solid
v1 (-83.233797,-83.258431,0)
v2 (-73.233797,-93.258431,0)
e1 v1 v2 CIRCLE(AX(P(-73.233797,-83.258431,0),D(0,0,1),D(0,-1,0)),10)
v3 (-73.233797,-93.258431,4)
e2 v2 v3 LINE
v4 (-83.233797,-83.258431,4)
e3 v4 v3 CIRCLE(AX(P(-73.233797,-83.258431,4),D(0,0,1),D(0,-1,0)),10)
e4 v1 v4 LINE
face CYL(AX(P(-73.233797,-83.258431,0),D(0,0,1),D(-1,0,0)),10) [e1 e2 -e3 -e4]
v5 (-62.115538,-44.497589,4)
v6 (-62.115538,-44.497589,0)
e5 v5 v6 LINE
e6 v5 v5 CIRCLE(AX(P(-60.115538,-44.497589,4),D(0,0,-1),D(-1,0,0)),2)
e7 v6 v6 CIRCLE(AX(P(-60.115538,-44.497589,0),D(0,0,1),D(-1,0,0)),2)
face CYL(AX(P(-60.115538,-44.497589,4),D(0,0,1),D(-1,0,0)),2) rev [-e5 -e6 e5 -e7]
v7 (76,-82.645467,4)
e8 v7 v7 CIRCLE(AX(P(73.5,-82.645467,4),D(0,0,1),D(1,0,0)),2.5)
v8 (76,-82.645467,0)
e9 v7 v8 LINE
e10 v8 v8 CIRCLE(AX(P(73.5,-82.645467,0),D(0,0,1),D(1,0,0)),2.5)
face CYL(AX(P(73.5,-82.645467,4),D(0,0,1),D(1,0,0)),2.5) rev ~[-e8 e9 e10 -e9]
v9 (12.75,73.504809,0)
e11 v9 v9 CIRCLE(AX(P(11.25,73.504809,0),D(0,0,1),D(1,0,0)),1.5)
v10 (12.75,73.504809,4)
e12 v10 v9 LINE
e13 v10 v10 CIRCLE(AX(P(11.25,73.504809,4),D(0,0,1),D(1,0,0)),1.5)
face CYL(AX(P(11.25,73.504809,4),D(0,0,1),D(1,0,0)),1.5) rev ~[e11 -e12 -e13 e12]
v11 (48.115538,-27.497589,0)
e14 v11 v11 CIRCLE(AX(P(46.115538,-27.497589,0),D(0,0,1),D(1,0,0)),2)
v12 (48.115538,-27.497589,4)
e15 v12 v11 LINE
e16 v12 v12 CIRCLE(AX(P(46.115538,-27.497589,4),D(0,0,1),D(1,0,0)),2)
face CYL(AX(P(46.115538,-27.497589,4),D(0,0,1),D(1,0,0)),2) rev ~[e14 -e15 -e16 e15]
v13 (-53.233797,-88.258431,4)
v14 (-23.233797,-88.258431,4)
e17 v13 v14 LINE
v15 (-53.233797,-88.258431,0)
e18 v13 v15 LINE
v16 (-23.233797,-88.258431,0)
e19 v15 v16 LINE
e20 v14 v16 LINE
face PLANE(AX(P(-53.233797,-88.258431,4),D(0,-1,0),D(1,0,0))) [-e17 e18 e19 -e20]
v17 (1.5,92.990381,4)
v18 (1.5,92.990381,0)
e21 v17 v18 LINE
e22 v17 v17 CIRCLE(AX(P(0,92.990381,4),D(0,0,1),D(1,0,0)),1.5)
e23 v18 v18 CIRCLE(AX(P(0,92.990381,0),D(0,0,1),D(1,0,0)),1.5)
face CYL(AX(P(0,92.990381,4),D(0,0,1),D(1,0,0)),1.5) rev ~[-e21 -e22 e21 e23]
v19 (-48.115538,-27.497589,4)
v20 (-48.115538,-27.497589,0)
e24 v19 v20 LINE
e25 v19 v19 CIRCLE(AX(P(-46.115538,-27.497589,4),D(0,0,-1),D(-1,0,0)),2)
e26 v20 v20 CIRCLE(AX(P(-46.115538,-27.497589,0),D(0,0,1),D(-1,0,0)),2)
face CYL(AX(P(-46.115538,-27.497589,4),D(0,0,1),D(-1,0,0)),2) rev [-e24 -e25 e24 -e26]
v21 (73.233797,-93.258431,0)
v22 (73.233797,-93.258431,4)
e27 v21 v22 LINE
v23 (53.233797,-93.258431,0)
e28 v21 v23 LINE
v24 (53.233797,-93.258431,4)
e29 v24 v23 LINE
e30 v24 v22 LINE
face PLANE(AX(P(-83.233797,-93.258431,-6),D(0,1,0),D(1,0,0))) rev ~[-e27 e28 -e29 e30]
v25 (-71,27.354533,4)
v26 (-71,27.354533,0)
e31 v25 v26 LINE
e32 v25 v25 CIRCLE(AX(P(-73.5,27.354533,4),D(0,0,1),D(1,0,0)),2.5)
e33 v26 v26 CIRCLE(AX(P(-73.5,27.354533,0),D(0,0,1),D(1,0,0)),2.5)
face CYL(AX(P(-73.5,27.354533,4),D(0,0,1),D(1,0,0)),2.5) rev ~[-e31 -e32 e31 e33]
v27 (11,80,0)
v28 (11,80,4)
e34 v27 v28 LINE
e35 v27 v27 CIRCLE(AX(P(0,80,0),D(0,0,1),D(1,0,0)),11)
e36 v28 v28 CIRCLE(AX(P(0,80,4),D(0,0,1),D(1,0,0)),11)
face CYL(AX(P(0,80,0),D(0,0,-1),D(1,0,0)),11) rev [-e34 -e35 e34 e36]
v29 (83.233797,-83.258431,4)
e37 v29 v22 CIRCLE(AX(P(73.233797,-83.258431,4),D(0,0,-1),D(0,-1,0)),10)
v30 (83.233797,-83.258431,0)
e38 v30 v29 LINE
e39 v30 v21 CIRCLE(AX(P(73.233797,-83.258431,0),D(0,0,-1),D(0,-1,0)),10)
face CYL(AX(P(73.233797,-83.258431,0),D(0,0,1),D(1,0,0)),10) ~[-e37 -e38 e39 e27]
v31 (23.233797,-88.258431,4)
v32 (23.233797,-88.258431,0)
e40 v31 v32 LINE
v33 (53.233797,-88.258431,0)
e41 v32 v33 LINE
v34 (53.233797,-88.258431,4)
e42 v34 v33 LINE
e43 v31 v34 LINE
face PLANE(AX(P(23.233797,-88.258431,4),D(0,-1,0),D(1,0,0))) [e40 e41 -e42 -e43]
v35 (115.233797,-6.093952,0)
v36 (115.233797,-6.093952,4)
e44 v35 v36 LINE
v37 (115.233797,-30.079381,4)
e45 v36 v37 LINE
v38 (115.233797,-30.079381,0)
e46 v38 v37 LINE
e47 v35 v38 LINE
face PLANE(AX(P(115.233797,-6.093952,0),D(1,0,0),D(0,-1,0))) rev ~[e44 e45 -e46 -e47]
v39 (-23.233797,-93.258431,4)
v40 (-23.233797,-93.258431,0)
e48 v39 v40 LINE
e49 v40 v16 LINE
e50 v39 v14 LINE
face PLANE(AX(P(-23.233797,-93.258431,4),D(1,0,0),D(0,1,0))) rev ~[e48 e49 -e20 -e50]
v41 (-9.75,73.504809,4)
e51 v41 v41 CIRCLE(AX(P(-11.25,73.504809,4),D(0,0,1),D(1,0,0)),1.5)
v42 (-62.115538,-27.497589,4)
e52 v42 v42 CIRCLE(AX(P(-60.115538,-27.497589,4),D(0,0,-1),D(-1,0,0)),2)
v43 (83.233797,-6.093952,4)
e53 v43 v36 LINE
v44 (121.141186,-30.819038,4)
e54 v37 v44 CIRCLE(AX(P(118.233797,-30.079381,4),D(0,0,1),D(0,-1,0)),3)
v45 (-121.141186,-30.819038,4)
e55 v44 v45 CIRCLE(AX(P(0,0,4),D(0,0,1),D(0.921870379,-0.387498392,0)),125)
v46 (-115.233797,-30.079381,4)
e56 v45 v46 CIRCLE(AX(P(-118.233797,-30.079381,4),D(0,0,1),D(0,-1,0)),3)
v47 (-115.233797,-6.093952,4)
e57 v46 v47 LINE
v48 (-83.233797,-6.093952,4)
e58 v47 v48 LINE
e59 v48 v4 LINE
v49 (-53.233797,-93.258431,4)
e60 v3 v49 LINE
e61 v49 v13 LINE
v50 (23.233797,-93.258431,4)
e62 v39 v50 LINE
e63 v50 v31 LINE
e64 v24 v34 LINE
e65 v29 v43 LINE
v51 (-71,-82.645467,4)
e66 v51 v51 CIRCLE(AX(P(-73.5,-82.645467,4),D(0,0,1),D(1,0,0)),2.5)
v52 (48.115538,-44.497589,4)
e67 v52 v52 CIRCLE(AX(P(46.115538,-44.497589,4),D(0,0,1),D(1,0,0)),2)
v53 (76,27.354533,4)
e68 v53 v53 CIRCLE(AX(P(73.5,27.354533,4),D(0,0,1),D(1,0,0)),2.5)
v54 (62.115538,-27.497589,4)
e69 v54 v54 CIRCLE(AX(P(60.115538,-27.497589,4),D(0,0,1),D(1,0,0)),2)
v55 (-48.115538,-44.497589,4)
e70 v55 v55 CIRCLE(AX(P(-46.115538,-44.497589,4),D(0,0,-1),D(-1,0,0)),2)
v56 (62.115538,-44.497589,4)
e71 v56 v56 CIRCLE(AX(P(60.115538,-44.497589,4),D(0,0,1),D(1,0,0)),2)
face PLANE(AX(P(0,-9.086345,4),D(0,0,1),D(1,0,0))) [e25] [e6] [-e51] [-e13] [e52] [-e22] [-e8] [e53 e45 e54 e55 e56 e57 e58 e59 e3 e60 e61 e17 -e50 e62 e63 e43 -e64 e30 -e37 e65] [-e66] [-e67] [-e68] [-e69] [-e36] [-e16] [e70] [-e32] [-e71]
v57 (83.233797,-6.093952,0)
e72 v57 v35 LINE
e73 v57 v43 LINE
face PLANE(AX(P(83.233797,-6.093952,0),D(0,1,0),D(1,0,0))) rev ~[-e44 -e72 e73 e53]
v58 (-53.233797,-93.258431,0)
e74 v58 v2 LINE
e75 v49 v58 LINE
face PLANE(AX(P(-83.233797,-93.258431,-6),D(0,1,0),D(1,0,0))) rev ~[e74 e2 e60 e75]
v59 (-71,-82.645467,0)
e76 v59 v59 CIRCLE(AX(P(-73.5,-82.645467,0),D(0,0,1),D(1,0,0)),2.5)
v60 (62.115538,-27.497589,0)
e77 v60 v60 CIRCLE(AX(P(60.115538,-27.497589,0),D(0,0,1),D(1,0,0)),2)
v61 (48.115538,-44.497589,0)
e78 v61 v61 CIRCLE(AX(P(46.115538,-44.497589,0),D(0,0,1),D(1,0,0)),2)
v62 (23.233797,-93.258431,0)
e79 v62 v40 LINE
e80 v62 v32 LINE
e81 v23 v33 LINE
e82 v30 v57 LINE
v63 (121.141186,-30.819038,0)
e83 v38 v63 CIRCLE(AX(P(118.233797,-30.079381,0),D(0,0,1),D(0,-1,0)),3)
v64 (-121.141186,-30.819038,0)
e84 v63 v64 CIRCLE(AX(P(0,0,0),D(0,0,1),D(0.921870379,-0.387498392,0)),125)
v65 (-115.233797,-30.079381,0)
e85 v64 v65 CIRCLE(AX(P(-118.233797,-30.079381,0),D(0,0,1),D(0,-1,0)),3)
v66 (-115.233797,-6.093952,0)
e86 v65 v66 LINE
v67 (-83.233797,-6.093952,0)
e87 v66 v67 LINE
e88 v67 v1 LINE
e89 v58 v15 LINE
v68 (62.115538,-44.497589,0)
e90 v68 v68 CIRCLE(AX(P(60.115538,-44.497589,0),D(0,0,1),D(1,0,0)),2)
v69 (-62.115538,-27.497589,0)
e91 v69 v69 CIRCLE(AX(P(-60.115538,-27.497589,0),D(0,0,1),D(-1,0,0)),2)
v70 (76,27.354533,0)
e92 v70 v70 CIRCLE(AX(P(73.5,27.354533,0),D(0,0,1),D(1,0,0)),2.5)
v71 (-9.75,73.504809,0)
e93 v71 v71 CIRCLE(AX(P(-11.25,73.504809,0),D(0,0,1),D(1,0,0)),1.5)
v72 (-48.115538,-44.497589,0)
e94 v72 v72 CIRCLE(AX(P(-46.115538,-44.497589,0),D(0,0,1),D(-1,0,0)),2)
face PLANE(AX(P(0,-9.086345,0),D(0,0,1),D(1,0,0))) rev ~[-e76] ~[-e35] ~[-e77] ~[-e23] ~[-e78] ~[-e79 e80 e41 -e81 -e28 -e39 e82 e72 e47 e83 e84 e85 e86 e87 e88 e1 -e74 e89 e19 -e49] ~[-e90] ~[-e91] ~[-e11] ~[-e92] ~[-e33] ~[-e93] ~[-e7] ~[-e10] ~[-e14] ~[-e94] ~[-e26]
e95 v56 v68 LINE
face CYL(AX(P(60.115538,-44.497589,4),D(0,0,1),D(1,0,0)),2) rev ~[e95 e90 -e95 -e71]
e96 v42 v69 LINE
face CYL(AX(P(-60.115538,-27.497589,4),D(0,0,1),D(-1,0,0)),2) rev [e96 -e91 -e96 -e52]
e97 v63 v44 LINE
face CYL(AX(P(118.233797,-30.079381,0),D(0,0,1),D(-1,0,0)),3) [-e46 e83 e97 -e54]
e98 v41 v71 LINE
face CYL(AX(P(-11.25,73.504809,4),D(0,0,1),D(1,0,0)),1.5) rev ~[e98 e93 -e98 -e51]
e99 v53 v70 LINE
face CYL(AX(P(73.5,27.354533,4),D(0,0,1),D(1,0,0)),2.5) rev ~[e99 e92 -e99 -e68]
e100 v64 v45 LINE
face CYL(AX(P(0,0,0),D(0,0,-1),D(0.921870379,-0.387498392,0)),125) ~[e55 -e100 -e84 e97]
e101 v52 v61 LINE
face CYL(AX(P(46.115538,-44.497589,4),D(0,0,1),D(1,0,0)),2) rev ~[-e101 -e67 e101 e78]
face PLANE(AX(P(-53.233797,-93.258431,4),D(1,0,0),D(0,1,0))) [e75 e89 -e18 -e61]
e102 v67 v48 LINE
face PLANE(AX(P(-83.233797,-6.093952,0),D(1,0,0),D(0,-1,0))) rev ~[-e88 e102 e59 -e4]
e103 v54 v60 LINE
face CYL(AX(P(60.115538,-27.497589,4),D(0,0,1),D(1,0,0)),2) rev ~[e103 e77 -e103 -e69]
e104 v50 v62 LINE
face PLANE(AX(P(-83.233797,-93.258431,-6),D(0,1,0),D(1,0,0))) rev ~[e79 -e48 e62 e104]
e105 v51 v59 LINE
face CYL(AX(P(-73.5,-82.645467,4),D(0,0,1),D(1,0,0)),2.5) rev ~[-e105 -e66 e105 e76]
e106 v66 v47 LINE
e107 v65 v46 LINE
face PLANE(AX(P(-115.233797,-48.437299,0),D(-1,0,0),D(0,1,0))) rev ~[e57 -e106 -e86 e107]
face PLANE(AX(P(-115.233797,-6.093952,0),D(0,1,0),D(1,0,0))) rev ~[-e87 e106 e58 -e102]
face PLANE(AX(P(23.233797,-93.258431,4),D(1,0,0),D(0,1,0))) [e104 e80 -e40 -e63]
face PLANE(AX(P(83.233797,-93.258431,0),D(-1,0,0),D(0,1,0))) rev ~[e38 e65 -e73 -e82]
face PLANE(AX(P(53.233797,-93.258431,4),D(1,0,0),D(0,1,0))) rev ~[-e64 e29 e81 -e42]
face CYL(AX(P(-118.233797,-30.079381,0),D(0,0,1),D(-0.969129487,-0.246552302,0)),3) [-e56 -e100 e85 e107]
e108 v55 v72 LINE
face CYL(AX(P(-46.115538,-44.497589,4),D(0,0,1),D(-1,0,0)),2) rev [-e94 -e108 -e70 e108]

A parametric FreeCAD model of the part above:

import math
import FreeCAD as App
import Part
import Sketcher
from FreeCAD import Vector


def edges_at(feature, points):
    """Names of the edges that pass closest to the given points."""
    edges = feature.Shape.Edges
    near = lambda p: min(range(len(edges)), key=lambda i: edges[i].distToShape(Part.Vertex(*p))[0])
    return sorted({f"Edge{near(p) + 1}" for p in points})

doc = App.newDocument("Part")
params = doc.addObject("Spreadsheet::Sheet", "Params")
for row, (alias, value) in enumerate([
    ("sketch1_diameter", "22 mm"),
    ("sketch1_radius", "125 mm"),
    ("sketch1_width", "32 mm"),
    ("pad1_length", "4 mm"),
    ("sketch2_diameter", "3 mm"),
    ("pocket1_length", "10 mm"),
    ("sketch3_radius", "125 mm"),
    ("pocket2_length", "10 mm"),
    ("fillet_radius", "10 mm"),
    ("fillet2_radius", "3 mm"),
    ("sketch4_width", "30 mm"),
    ("sketch4_height", "5 mm"),
    ("pocket3_length", "10 mm"),
    ("sketch5_diameter", "5 mm"),
    ("sketch6_diameter", "4 mm"),
], start=1):
    params.set(f"A{row}", alias)
    params.set(f"B{row}", "=" + value)
    params.setAlias(f"B{row}", alias)

body = doc.addObject("PartDesign::Body", "Body")

sketch1 = body.newObject("Sketcher::SketchObject", "Sketch")
sketch1.AttachmentSupport = (doc.getObject("XY_Plane"), [""])
sketch1.MapMode = "FlatFace"
sketch1.addGeometry([
    Part.LineSegment(Vector(-115.233797, -48.437299, 0), Vector(-115.233797, -6.093952, 0)),
    Part.LineSegment(Vector(-115.233797, -6.093952, 0), Vector(-83.233797, -6.093952, 0)),
    Part.LineSegment(Vector(-83.233797, -6.093952, 0), Vector(-83.233797, -93.258431, 0)),
    Part.ArcOfCircle(Part.Circle(Vector(0, 0, 0), Vector(0, 0, 1), 125), math.radians(-131.749133), math.radians(-48.250867)),
    Part.LineSegment(Vector(83.233797, -93.258431, 0), Vector(83.233797, -6.093952, 0)),
    Part.LineSegment(Vector(83.233797, -6.093952, 0), Vector(115.233797, -6.093952, 0)),
    Part.LineSegment(Vector(115.233797, -6.093952, 0), Vector(115.233797, -48.437299, 0)),
    Part.ArcOfCircle(Part.Circle(Vector(0, 0, 0), Vector(0, 0, 1), 125), math.radians(-22.798931), math.radians(202.798931)),
    Part.Circle(Vector(0, 80, 0), Vector(0, 0, 1), 11),
], False)
sketch1.addConstraint([
    Sketcher.Constraint("Coincident", 0, 2, 1, 1),
    Sketcher.Constraint("Coincident", 1, 2, 2, 1),
    Sketcher.Constraint("Coincident", 2, 2, 3, 1),
    Sketcher.Constraint("Coincident", 3, 2, 4, 1),
    Sketcher.Constraint("Coincident", 4, 2, 5, 1),
    Sketcher.Constraint("Coincident", 5, 2, 6, 1),
    Sketcher.Constraint("Coincident", 6, 2, 7, 1),
    Sketcher.Constraint("Coincident", 7, 2, 0, 1),
    Sketcher.Constraint("Vertical", 0),
    Sketcher.Constraint("Horizontal", 1),
    Sketcher.Constraint("Vertical", 2),
    Sketcher.Constraint("Vertical", 4),
    Sketcher.Constraint("Horizontal", 5),
    Sketcher.Constraint("Vertical", 6),
    Sketcher.Constraint("Coincident", 3, 3, -1, 1),
    Sketcher.Constraint("Coincident", 7, 3, -1, 1),
    Sketcher.Constraint("Equal", 3, 7),
    Sketcher.Constraint("Symmetric", 1, 2, 4, 2, -2),
    Sketcher.Constraint("PointOnObject", 8, 3, -2),
    Sketcher.Constraint("Horizontal", 6, 2, 7, 2),
    Sketcher.Constraint("Diameter", 8, 22.0),
    Sketcher.Constraint("Radius", 3, 125.0),
    Sketcher.Constraint("DistanceX", 1, 1, 1, 2, 32.0),
    Sketcher.Constraint("DistanceY", -1, 1, 8, 3, 80.0),
    Sketcher.Constraint("DistanceY", 2, 2, 2, 1, 87.164479),
    Sketcher.Constraint("DistanceY", 6, 2, -1, 1, 48.437299),
])
sketch1.setExpression("Constraints[20]", "Params.sketch1_diameter")
sketch1.setExpression("Constraints[21]", "Params.sketch1_radius")
sketch1.setExpression("Constraints[22]", "Params.sketch1_width")
pad1 = body.newObject("PartDesign::Pad", "Pad")
pad1.Profile = sketch1
pad1.setExpression("Length", "Params.pad1_length")

sketch2 = body.newObject("Sketcher::SketchObject", "Sketch001")
sketch2.AttachmentSupport = (doc.getObject("XY_Plane"), [""])
sketch2.MapMode = "FlatFace"
sketch2.AttachmentOffset = App.Placement(Vector(0, 0, 4), App.Rotation())
sketch2.addGeometry([
    Part.Circle(Vector(0, 92.990381, 0), Vector(0, 0, 1), 1.5),
    Part.Circle(Vector(11.25, 73.504809, 0), Vector(0, 0, 1), 1.5),
    Part.Circle(Vector(-11.25, 73.504809, 0), Vector(0, 0, 1), 1.5),
], False)
sketch2.addConstraint([
    Sketcher.Constraint("Equal", 0, 1),
    Sketcher.Constraint("Equal", 1, 2),
    Sketcher.Constraint("Symmetric", 1, 3, 2, 3, -2),
    Sketcher.Constraint("PointOnObject", 0, 3, -2),
    Sketcher.Constraint("Diameter", 0, 3.0),
    Sketcher.Constraint("DistanceX", 2, 3, 1, 3, 22.5),
    Sketcher.Constraint("DistanceY", -1, 1, 0, 3, 92.990381),
    Sketcher.Constraint("DistanceY", -1, 1, 1, 3, 73.504809),
])
sketch2.setExpression("Constraints[4]", "Params.sketch2_diameter")
pocket1 = body.newObject("PartDesign::Pocket", "Pocket")
pocket1.Profile = sketch2
pocket1.setExpression("Length", "Params.pocket1_length")

sketch3 = body.newObject("Sketcher::SketchObject", "Sketch002")
sketch3.AttachmentSupport = (doc.getObject("XY_Plane"), [""])
sketch3.MapMode = "FlatFace"
sketch3.AttachmentOffset = App.Placement(Vector(0, 0, -6), App.Rotation())
sketch3.addGeometry([
    Part.LineSegment(Vector(83.233797, -93.258431, 0), Vector(-83.233797, -93.258431, 0)),
    Part.ArcOfCircle(Part.Circle(Vector(0, 0, 0), Vector(0, 0, 1), 125), math.radians(-131.749133), math.radians(-48.250867)),
], False)
sketch3.addConstraint([
    Sketcher.Constraint("Coincident", 0, 1, 1, 2),
    Sketcher.Constraint("Coincident", 1, 1, 0, 2),
    Sketcher.Constraint("Horizontal", 0),
    Sketcher.Constraint("Coincident", 1, 3, -1, 1),
    Sketcher.Constraint("Radius", 1, 125.0),
    Sketcher.Constraint("DistanceX", 0, 2, 0, 1, 166.467595),
])
sketch3.setExpression("Constraints[4]", "Params.sketch3_radius")
pocket2 = body.newObject("PartDesign::Pocket", "Pocket001")
pocket2.Profile = sketch3
pocket2.setExpression("Length", "Params.pocket2_length")
pocket2.Reversed = True
doc.recompute()

fillet = body.newObject("PartDesign::Fillet", "Fillet")
fillet.Base = (pocket2, edges_at(pocket2, [(83.234, -93.258, 2), (-83.234, -93.258, 2)]))
fillet.setExpression("Radius", "Params.fillet_radius")
doc.recompute()

fillet2 = body.newObject("PartDesign::Fillet", "Fillet001")
fillet2.Base = (fillet, edges_at(fillet, [(115.234, -48.437, 2), (-115.234, -48.437, 2)]))
fillet2.setExpression("Radius", "Params.fillet2_radius")

sketch4 = body.newObject("Sketcher::SketchObject", "Sketch003")
sketch4.AttachmentSupport = (doc.getObject("XY_Plane"), [""])
sketch4.MapMode = "FlatFace"
sketch4.AttachmentOffset = App.Placement(Vector(0, 0, 4), App.Rotation())
sketch4.addGeometry([
    Part.LineSegment(Vector(23.233797, -88.258431, 0), Vector(23.233797, -93.258431, 0)),
    Part.LineSegment(Vector(23.233797, -93.258431, 0), Vector(53.233797, -93.258431, 0)),
    Part.LineSegment(Vector(53.233797, -93.258431, 0), Vector(53.233797, -88.258431, 0)),
    Part.LineSegment(Vector(53.233797, -88.258431, 0), Vector(23.233797, -88.258431, 0)),
    Part.LineSegment(Vector(-53.233797, -88.258431, 0), Vector(-53.233797, -93.258431, 0)),
    Part.LineSegment(Vector(-53.233797, -93.258431, 0), Vector(-23.233797, -93.258431, 0)),
    Part.LineSegment(Vector(-23.233797, -93.258431, 0), Vector(-23.233797, -88.258431, 0)),
    Part.LineSegment(Vector(-23.233797, -88.258431, 0), Vector(-53.233797, -88.258431, 0)),
], False)
sketch4.addConstraint([
    Sketcher.Constraint("Coincident", 0, 2, 1, 1),
    Sketcher.Constraint("Coincident", 1, 2, 2, 1),
    Sketcher.Constraint("Coincident", 2, 2, 3, 1),
    Sketcher.Constraint("Coincident", 3, 2, 0, 1),
    Sketcher.Constraint("Coincident", 4, 2, 5, 1),
    Sketcher.Constraint("Coincident", 5, 2, 6, 1),
    Sketcher.Constraint("Coincident", 6, 2, 7, 1),
    Sketcher.Constraint("Coincident", 7, 2, 4, 1),
    Sketcher.Constraint("Vertical", 0),
    Sketcher.Constraint("Horizontal", 1),
    Sketcher.Constraint("Vertical", 2),
    Sketcher.Constraint("Horizontal", 3),
    Sketcher.Constraint("Vertical", 4),
    Sketcher.Constraint("Horizontal", 5),
    Sketcher.Constraint("Vertical", 6),
    Sketcher.Constraint("Horizontal", 7),
    Sketcher.Constraint("Symmetric", 1, 2, 4, 2, -2),
    Sketcher.Constraint("Symmetric", 3, 2, 6, 2, -2),
    Sketcher.Constraint("DistanceX", 1, 1, 1, 2, 30.0),
    Sketcher.Constraint("DistanceY", 0, 2, 0, 1, 5.0),
    Sketcher.Constraint("DistanceY", 0, 2, -1, 1, 93.258431),
    Sketcher.Constraint("DistanceX", -1, 1, 0, 2, 23.233797),
])
sketch4.setExpression("Constraints[18]", "Params.sketch4_width")
sketch4.setExpression("Constraints[19]", "Params.sketch4_height")
pocket3 = body.newObject("PartDesign::Pocket", "Pocket002")
pocket3.Profile = sketch4
pocket3.setExpression("Length", "Params.pocket3_length")

sketch5 = body.newObject("Sketcher::SketchObject", "Sketch004")
sketch5.AttachmentSupport = (doc.getObject("XY_Plane"), [""])
sketch5.MapMode = "FlatFace"
sketch5.AttachmentOffset = App.Placement(Vector(0, 0, 4), App.Rotation())
sketch5.addGeometry([
    Part.Circle(Vector(-73.5, -82.645467, 0), Vector(0, 0, 1), 2.5),
    Part.Circle(Vector(73.5, -82.645467, 0), Vector(0, 0, 1), 2.5),
    Part.Circle(Vector(73.5, 27.354533, 0), Vector(0, 0, 1), 2.5),
    Part.Circle(Vector(-73.5, 27.354533, 0), Vector(0, 0, 1), 2.5),
], False)
sketch5.addConstraint([
    Sketcher.Constraint("Equal", 0, 1),
    Sketcher.Constraint("Equal", 1, 2),
    Sketcher.Constraint("Equal", 2, 3),
    Sketcher.Constraint("Symmetric", 0, 3, 1, 3, -2),
    Sketcher.Constraint("Symmetric", 2, 3, 3, 3, -2),
    Sketcher.Constraint("Vertical", 1, 3, 2, 3),
    Sketcher.Constraint("Diameter", 0, 5.0),
    Sketcher.Constraint("DistanceX", 0, 3, 1, 3, 147.0),
    Sketcher.Constraint("DistanceY", 1, 3, 2, 3, 110.0),
    Sketcher.Constraint("DistanceY", 0, 3, -1, 1, 82.645467),
])
sketch5.setExpression("Constraints[6]", "Params.sketch5_diameter")
pocket4 = body.newObject("PartDesign::Pocket", "Pocket003")
pocket4.Profile = sketch5
pocket4.Type = "ThroughAll"

sketch6 = body.newObject("Sketcher::SketchObject", "Sketch005")
sketch6.AttachmentSupport = (doc.getObject("XY_Plane"), [""])
sketch6.MapMode = "FlatFace"
sketch6.AttachmentOffset = App.Placement(Vector(0, 0, 4), App.Rotation())
sketch6.addGeometry([
    Part.Circle(Vector(46.115538, -27.497589, 0), Vector(0, 0, 1), 2),
    Part.Circle(Vector(46.115538, -44.497589, 0), Vector(0, 0, 1), 2),
    Part.Circle(Vector(60.115538, -44.497589, 0), Vector(0, 0, 1), 2),
    Part.Circle(Vector(60.115538, -27.497589, 0), Vector(0, 0, 1), 2),
], False)
sketch6.addConstraint([
    Sketcher.Constraint("Equal", 0, 1),
    Sketcher.Constraint("Equal", 1, 2),
    Sketcher.Constraint("Equal", 2, 3),
    Sketcher.Constraint("Horizontal", 1, 3, 2, 3),
    Sketcher.Constraint("Horizontal", 0, 3, 3, 3),
    Sketcher.Constraint("Vertical", 0, 3, 1, 3),
    Sketcher.Constraint("Vertical", 2, 3, 3, 3),
    Sketcher.Constraint("Diameter", 0, 4.0),
    Sketcher.Constraint("DistanceY", 1, 3, 0, 3, 17.0),
    Sketcher.Constraint("DistanceX", 1, 3, 2, 3, 14.0),
    Sketcher.Constraint("DistanceY", 0, 3, -1, 1, 27.497589),
    Sketcher.Constraint("DistanceX", -1, 1, 0, 3, 46.115538),
])
sketch6.setExpression("Constraints[7]", "Params.sketch6_diameter")
pocket5 = body.newObject("PartDesign::Pocket", "Pocket004")
pocket5.Profile = sketch6
pocket5.Type = "ThroughAll"
doc.recompute()

mirrored = body.newObject("PartDesign::Mirrored", "Mirrored")
mirrored.Originals = [pocket5]
mirrored.MirrorPlane = (doc.getObject("YZ_Plane"), [""])
body.Tip = mirrored

doc.recompute()
